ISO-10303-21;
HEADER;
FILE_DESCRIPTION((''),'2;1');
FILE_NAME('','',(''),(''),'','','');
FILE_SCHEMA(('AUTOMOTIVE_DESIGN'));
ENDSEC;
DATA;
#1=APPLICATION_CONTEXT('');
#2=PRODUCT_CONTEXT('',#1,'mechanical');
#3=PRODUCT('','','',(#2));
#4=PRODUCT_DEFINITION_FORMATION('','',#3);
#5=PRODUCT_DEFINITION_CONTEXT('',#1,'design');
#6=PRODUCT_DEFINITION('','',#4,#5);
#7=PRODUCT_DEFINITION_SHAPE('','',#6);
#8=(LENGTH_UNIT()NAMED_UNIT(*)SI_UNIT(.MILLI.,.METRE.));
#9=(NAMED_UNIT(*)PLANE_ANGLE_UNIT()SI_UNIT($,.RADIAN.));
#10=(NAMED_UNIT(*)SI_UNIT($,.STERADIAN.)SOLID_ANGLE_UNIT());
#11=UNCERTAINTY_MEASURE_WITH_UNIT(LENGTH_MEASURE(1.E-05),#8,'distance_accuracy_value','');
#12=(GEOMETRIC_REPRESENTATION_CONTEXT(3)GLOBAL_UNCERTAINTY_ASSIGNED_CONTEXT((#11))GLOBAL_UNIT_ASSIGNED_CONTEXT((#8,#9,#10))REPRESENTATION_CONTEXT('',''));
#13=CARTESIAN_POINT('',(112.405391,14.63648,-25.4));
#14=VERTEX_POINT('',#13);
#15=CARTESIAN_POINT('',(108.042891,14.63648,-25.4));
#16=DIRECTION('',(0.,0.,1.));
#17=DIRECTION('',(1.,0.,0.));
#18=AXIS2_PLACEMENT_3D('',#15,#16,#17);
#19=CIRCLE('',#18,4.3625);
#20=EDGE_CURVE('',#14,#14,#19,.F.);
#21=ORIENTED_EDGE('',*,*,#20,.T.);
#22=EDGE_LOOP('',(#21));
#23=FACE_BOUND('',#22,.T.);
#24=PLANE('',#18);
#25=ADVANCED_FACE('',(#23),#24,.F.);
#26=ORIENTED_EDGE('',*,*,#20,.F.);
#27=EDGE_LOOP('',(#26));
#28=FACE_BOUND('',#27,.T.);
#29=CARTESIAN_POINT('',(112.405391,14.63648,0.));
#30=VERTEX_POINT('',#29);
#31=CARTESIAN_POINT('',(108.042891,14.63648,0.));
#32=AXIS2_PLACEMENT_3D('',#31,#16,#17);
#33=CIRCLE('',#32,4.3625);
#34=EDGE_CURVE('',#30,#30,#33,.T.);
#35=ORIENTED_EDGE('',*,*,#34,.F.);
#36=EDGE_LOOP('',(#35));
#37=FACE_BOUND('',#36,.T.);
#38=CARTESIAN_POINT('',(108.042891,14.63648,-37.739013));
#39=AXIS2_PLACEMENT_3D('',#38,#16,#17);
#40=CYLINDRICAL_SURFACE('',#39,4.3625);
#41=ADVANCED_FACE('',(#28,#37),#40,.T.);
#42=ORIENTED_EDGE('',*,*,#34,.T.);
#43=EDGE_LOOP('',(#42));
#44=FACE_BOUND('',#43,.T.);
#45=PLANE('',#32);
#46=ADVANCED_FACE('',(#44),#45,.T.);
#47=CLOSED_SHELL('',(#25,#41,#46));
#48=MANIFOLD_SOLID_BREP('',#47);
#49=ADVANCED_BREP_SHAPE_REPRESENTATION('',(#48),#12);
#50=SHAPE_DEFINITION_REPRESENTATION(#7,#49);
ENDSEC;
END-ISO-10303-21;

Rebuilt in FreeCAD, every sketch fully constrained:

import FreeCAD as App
import Part
import Sketcher

V = App.Vector

doc = App.newDocument("Part")
params = doc.addObject("Spreadsheet::Sheet", "Params")
for row, (alias, value) in enumerate([
    ("pad1_length", "1 in"),
], start=1):
    params.set(f"A{row}", alias)
    params.set(f"B{row}", "=" + value)
    params.setAlias(f"B{row}", alias)

body = doc.addObject("PartDesign::Body", "Body")

# Sketch on XY plane
sketch1 = body.newObject("Sketcher::SketchObject", "Sketch")
sketch1.AttachmentSupport = (doc.getObject("XY_Plane"), [""])
sketch1.MapMode = "FlatFace"
sketch1.addGeometry(Part.Circle(V(108, 14.6, 0), V(0, 0, 1), 4.4), False)
sketch1.addConstraint(Sketcher.Constraint("Diameter", 0, 8.725))
sketch1.addConstraint(Sketcher.Constraint("DistanceX", -1, 1, 0, 3, 108.042891))
sketch1.addConstraint(Sketcher.Constraint("DistanceY", -1, 1, 0, 3, 14.63648))
pad1 = body.newObject("PartDesign::Pad", "Pad")
pad1.Profile = sketch1
pad1.setExpression("Length", "Params.pad1_length")
pad1.Reversed = True

doc.recompute()
